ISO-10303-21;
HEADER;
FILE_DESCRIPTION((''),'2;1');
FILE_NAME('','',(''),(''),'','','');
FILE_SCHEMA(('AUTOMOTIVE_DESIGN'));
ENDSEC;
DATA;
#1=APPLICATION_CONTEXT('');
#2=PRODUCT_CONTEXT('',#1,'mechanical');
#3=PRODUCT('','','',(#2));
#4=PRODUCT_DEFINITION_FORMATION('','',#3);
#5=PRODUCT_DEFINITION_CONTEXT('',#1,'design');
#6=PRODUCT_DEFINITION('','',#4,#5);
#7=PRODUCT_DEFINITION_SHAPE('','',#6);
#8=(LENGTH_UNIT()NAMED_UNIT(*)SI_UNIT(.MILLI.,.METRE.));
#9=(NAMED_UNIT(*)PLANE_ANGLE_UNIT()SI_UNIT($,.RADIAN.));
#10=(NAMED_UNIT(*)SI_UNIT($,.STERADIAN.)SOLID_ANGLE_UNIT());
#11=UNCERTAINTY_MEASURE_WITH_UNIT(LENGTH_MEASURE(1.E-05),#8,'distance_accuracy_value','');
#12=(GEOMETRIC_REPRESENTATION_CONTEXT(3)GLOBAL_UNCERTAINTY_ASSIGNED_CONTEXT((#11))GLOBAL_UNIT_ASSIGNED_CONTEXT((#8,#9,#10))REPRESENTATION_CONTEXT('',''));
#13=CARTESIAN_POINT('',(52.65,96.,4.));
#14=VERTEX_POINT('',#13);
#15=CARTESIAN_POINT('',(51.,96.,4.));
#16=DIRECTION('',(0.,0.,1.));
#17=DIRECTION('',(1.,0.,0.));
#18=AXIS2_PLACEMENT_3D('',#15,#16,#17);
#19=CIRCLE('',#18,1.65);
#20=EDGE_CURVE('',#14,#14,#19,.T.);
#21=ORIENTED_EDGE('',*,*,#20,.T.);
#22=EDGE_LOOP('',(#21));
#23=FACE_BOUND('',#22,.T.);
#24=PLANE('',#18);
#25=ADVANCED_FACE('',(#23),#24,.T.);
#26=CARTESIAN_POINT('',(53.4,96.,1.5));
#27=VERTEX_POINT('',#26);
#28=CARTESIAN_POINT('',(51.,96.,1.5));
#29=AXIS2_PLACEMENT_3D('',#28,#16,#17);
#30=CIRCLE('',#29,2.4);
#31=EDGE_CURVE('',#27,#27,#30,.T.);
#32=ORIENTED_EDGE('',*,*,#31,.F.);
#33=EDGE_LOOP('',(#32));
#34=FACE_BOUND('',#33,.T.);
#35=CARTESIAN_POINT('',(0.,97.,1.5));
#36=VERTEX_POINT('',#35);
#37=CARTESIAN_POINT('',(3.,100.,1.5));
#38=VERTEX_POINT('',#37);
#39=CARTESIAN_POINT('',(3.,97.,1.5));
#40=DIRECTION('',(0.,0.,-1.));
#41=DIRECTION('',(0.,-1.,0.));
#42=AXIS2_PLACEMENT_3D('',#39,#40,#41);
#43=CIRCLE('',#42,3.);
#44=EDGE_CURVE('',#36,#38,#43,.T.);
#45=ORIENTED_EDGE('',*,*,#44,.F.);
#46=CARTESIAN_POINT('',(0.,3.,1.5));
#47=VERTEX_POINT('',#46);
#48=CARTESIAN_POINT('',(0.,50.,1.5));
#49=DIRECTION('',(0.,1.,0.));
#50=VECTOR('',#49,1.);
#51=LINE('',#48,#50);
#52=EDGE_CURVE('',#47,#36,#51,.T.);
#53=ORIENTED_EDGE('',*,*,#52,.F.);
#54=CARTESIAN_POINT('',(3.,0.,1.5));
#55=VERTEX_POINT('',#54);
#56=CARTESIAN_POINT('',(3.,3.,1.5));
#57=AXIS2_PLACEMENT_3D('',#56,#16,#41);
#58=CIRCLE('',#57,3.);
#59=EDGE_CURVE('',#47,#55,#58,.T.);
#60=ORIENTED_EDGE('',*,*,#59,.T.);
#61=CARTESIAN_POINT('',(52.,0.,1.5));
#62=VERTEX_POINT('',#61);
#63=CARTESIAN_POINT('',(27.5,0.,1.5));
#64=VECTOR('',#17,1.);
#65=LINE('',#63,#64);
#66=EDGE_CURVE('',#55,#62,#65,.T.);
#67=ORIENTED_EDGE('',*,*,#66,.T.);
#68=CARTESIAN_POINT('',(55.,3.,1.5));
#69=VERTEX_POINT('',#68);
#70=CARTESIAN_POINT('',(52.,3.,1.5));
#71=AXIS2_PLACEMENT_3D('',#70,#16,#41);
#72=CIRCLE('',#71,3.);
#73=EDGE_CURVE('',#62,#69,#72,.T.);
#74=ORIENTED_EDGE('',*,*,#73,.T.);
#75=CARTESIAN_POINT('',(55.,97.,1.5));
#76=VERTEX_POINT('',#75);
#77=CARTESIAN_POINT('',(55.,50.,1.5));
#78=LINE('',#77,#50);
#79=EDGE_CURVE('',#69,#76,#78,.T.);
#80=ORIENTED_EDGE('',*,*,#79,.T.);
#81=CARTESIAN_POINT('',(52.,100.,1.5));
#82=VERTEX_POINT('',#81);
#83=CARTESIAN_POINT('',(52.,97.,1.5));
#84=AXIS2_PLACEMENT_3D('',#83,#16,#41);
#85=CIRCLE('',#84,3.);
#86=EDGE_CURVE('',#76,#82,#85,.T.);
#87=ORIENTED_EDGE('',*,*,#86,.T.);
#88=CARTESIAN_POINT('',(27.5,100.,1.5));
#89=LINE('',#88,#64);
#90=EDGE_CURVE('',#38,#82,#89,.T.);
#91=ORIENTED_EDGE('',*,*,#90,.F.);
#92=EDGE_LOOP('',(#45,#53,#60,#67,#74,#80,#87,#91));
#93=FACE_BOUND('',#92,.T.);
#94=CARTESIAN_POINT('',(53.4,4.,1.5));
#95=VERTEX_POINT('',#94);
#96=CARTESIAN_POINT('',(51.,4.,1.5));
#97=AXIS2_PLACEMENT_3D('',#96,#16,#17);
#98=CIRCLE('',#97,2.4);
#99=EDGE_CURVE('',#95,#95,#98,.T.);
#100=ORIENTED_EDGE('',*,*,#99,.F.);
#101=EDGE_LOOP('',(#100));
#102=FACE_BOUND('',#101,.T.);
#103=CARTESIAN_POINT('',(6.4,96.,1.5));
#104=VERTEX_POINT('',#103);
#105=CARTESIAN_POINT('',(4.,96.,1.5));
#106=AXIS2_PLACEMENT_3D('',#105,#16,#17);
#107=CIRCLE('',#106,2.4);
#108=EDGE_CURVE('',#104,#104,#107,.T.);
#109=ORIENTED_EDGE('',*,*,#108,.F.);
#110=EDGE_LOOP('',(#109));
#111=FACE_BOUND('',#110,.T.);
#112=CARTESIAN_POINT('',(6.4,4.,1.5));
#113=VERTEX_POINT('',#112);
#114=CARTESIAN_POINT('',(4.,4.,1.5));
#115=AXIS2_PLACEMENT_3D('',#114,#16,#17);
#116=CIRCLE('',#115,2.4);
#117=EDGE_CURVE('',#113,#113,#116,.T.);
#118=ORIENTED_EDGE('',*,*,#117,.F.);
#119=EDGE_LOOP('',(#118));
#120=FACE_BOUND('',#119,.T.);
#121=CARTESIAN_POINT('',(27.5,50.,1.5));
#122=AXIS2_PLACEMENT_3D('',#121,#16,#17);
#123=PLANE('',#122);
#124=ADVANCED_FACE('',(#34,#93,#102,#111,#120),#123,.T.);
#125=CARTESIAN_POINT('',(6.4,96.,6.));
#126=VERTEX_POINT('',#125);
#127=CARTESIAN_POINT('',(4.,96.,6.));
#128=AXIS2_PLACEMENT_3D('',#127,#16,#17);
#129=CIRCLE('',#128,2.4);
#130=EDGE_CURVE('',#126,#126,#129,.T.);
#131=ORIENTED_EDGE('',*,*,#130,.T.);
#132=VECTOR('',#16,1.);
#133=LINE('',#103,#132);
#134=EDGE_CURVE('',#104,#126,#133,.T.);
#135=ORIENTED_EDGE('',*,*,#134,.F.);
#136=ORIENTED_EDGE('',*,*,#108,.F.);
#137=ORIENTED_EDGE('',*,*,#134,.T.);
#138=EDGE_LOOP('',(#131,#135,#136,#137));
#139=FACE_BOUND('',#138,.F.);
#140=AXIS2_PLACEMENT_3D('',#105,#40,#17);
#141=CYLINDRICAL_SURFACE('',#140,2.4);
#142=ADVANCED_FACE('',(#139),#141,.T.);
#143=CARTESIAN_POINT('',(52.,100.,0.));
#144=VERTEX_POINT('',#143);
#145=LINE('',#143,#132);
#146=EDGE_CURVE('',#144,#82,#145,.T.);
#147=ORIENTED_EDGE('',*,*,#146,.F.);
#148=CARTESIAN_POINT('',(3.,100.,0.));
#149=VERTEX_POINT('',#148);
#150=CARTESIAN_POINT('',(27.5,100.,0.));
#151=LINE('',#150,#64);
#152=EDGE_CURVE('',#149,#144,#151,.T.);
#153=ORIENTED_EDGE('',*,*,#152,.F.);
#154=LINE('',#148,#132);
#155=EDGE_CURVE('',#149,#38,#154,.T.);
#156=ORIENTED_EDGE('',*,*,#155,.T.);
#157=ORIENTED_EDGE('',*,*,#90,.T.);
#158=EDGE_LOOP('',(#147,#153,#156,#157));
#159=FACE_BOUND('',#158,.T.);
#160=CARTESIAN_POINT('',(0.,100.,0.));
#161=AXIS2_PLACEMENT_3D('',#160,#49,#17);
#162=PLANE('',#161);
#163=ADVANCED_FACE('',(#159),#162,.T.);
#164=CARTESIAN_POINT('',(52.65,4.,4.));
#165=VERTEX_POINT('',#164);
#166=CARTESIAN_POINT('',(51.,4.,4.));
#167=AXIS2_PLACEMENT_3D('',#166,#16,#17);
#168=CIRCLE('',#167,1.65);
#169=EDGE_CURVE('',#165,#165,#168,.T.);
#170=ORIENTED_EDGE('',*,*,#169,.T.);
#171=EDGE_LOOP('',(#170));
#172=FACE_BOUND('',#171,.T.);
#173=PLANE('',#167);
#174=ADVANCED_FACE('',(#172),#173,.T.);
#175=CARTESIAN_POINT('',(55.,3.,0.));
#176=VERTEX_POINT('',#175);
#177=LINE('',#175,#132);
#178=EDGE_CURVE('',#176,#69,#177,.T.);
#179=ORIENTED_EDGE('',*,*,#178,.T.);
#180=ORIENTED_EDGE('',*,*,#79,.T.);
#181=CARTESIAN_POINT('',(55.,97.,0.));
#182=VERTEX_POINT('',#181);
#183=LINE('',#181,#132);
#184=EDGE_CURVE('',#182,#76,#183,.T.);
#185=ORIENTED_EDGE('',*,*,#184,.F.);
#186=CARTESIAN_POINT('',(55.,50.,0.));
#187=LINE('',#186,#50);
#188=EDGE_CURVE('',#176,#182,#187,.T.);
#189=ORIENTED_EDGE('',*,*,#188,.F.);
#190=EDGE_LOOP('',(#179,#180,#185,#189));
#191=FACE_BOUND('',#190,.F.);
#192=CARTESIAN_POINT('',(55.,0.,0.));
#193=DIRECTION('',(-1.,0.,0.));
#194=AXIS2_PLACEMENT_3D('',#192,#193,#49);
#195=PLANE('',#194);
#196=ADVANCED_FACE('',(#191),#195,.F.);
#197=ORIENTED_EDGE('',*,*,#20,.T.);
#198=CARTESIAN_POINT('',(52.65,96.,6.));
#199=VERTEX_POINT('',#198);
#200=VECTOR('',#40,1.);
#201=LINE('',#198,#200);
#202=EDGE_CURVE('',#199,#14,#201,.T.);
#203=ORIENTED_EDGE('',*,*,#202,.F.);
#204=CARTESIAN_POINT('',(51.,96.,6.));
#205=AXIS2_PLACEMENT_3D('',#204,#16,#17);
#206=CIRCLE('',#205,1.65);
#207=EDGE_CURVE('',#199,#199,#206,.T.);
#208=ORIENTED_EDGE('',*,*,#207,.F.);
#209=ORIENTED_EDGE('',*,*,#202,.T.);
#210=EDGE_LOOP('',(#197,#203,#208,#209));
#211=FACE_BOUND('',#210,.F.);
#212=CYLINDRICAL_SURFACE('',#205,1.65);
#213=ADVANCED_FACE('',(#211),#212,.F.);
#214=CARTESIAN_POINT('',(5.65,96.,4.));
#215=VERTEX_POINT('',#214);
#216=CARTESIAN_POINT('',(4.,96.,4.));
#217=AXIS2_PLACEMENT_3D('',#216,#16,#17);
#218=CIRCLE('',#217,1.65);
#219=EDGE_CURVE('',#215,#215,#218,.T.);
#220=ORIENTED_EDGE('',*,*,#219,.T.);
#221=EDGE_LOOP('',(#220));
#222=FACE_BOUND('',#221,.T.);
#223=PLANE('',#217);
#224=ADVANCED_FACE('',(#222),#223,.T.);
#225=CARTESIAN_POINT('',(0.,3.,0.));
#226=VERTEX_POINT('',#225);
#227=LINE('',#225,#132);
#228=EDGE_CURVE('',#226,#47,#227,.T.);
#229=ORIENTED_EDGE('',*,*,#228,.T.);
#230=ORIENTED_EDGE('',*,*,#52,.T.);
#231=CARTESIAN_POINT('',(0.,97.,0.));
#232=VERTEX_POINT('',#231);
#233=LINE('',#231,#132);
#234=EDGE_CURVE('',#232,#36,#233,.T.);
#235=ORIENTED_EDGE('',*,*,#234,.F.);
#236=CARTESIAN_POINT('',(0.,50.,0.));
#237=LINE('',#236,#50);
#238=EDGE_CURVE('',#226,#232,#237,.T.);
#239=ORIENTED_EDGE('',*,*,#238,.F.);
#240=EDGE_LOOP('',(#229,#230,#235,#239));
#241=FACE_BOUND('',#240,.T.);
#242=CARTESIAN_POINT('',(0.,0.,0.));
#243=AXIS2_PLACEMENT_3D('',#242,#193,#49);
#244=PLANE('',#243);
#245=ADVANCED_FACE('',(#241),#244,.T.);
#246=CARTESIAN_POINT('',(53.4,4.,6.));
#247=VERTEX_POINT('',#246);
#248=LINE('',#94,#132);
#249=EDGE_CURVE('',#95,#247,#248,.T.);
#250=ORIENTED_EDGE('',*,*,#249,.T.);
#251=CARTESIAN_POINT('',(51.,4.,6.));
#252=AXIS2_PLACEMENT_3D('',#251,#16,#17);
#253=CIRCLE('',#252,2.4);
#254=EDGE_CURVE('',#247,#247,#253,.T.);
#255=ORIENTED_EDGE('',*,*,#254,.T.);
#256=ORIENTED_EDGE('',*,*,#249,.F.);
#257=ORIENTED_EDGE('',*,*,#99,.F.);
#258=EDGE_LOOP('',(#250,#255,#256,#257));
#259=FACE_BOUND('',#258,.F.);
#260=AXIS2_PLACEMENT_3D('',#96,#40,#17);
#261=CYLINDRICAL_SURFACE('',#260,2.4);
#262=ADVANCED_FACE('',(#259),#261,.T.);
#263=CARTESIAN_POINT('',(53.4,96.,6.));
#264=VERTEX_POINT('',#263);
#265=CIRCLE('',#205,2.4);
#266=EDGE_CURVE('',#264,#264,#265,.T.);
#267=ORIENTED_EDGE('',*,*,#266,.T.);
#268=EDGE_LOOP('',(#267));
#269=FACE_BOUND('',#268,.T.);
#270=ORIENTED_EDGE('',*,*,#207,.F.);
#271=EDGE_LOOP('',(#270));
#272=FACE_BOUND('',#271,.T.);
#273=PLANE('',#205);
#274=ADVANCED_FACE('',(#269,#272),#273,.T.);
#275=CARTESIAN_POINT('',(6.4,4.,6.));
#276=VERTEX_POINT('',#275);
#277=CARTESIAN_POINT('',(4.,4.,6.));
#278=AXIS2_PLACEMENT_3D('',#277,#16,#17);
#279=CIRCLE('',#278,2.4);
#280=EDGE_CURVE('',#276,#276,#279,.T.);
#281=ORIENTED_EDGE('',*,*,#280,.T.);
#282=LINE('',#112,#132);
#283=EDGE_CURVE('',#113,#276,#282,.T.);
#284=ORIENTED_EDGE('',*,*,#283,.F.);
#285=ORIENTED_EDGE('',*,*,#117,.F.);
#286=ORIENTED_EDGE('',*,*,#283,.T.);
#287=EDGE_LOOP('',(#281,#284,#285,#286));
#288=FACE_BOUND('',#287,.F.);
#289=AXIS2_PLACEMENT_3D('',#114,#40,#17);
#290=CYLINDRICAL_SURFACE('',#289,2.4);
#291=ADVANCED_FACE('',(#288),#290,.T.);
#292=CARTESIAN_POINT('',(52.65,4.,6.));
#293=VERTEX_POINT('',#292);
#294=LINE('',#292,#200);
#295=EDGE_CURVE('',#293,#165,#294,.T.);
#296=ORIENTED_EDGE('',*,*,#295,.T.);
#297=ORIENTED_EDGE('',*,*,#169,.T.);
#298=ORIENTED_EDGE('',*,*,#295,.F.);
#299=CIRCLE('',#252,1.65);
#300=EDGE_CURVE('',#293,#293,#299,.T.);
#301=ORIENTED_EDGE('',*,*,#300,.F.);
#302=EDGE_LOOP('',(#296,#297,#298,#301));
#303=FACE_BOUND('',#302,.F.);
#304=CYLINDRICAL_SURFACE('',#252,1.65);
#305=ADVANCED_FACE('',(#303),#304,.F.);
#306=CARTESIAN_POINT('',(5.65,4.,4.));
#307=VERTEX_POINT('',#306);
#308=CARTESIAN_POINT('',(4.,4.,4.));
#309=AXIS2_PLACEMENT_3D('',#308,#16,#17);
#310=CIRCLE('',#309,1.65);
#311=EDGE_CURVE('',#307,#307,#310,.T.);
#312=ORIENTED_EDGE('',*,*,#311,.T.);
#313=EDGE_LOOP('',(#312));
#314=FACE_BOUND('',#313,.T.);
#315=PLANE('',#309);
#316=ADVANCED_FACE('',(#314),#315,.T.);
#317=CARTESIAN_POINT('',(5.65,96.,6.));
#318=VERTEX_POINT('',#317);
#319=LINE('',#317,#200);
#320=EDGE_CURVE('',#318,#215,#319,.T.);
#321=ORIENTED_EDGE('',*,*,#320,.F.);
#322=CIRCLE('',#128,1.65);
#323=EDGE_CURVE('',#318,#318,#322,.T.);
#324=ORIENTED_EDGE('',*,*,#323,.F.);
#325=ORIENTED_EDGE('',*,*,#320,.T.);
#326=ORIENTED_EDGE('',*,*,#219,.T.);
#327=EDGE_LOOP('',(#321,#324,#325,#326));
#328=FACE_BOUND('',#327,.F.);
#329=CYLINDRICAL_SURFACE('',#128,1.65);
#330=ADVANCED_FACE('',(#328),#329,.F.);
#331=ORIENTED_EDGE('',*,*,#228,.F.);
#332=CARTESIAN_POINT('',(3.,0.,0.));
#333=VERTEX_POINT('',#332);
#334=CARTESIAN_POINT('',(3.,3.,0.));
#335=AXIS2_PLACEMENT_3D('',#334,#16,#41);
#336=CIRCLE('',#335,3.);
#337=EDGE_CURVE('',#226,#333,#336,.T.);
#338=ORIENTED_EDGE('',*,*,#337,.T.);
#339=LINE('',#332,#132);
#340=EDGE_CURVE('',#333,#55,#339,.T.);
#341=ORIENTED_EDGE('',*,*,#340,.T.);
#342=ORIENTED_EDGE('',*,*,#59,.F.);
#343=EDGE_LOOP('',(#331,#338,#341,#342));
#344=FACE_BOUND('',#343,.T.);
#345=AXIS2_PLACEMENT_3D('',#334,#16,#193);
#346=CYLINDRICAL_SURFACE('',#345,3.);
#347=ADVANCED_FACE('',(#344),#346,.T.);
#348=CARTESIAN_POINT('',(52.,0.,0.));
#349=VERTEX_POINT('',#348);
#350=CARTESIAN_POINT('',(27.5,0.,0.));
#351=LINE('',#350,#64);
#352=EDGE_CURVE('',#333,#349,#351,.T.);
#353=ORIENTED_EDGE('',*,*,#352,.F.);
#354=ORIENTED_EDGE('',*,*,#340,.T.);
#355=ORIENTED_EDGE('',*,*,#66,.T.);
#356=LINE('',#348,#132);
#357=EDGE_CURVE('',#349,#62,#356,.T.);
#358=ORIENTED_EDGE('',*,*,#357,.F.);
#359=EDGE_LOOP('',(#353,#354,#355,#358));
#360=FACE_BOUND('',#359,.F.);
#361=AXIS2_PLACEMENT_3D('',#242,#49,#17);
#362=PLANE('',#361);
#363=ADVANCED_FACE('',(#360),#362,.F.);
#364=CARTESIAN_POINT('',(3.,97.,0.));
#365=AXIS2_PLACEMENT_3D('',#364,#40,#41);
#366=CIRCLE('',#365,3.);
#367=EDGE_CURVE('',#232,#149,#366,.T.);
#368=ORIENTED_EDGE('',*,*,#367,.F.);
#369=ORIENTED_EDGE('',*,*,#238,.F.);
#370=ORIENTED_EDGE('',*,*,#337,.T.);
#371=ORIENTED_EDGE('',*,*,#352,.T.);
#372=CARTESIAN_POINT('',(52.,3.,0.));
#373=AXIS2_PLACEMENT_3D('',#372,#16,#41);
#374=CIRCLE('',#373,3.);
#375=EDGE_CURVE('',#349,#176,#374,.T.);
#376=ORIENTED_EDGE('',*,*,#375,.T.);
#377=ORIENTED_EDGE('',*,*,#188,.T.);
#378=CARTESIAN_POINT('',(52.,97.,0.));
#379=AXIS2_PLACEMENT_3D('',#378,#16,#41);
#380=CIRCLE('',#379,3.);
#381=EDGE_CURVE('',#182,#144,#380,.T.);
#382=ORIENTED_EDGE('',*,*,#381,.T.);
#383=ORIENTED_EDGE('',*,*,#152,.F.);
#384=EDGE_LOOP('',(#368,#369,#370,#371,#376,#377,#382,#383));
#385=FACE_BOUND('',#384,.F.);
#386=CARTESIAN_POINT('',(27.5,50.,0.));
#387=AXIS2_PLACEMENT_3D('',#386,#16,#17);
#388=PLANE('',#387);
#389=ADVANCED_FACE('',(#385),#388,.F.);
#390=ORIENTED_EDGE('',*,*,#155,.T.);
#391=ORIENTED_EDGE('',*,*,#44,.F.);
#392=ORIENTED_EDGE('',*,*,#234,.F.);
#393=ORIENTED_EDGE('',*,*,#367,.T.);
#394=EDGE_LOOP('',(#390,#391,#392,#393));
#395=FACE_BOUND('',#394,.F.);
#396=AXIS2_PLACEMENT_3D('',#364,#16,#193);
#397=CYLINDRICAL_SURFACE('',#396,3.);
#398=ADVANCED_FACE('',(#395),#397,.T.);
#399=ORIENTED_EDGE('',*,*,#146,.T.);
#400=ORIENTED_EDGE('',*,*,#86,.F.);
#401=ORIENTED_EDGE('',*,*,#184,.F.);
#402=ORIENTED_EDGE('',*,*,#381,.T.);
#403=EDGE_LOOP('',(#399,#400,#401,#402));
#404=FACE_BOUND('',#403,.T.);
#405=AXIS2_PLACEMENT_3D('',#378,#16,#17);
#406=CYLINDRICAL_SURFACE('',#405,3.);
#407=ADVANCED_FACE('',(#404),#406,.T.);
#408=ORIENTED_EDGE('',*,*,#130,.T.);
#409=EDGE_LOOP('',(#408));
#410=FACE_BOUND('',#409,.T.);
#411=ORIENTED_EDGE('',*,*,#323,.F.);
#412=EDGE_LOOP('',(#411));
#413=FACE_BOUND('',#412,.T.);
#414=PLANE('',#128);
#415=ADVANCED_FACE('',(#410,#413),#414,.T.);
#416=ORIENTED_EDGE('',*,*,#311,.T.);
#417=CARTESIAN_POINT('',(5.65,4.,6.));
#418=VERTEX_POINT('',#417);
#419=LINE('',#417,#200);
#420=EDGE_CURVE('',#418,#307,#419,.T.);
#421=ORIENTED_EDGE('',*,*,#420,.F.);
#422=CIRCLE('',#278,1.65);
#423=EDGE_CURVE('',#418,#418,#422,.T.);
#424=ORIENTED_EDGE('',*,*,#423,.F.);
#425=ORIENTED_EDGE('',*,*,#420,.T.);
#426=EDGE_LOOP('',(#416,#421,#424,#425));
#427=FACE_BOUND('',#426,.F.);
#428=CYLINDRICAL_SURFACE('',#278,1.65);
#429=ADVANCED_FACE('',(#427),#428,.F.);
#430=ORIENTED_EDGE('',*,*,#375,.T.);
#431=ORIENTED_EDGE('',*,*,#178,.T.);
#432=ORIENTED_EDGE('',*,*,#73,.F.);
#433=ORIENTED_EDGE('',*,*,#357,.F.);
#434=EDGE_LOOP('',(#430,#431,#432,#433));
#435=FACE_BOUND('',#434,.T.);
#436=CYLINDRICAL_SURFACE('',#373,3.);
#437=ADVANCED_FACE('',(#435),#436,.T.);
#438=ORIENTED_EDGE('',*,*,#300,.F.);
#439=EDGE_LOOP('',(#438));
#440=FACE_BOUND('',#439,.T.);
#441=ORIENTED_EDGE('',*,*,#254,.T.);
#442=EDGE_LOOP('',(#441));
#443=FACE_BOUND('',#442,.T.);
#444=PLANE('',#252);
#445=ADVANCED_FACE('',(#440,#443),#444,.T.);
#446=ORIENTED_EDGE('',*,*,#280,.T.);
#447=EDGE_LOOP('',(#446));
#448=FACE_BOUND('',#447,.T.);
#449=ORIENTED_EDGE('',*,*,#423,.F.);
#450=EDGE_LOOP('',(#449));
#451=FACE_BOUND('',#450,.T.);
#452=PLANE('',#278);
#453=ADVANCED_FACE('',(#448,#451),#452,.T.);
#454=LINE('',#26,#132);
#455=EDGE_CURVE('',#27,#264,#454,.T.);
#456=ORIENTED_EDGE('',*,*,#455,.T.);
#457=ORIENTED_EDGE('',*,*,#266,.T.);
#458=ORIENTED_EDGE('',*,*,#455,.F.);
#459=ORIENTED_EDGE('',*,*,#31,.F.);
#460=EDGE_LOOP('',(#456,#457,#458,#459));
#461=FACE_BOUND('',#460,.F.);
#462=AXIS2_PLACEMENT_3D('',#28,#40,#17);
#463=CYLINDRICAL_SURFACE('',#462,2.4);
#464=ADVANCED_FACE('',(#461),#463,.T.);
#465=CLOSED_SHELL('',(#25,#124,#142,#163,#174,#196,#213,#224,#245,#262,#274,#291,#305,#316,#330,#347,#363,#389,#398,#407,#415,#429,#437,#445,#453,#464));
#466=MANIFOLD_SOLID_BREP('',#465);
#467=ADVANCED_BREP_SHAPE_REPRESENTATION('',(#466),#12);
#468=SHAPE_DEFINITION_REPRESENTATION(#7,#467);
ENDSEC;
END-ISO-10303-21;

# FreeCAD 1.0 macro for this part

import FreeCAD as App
import Part
import Sketcher


def edges_at(feature, points):
    """Names of the edges that pass closest to the given points."""
    edges = feature.Shape.Edges
    near = lambda p: min(range(len(edges)), key=lambda i: edges[i].distToShape(Part.Vertex(*p))[0])
    return sorted({f"Edge{near(p) + 1}" for p in points})

doc = App.newDocument("Part")
body = doc.addObject("PartDesign::Body", "Body")

sketch1 = body.newObject("Sketcher::SketchObject", "Sketch")
sketch1.AttachmentSupport = (doc.getObject("XY_Plane"), [""])
sketch1.MapMode = "FlatFace"
sketch1.addGeometry([
    Part.LineSegment(App.Vector(0, 100, 0), App.Vector(0, 0, 0)),
    Part.LineSegment(App.Vector(0, 0, 0), App.Vector(55, 0, 0)),
    Part.LineSegment(App.Vector(55, 0, 0), App.Vector(55, 100, 0)),
    Part.LineSegment(App.Vector(55, 100, 0), App.Vector(0, 100, 0)),
], False)
sketch1.addConstraint([
    Sketcher.Constraint("Coincident", 0, 2, 1, 1),
    Sketcher.Constraint("Coincident", 1, 2, 2, 1),
    Sketcher.Constraint("Coincident", 2, 2, 3, 1),
    Sketcher.Constraint("Coincident", 3, 2, 0, 1),
    Sketcher.Constraint("Vertical", 0),
    Sketcher.Constraint("Horizontal", 1),
    Sketcher.Constraint("Vertical", 2),
    Sketcher.Constraint("Horizontal", 3),
    Sketcher.Constraint("Coincident", 0, 2, -1, 1),
    Sketcher.Constraint("DistanceX", 1, 1, 1, 2, 55.0),
    Sketcher.Constraint("DistanceY", 0, 2, 0, 1, 100.0),
])
pad1 = body.newObject("PartDesign::Pad", "Pad")
pad1.Profile = sketch1
pad1.Length = 1.5
doc.recompute()

fillet = body.newObject("PartDesign::Fillet", "Fillet")
fillet.Base = (pad1, edges_at(pad1, [
    (0, 100, 0.75),
    (55, 100, 0.75),
    (0, 0, 0.75),
    (55, 0, 0.75),
]))
fillet.Radius = 3

sketch2 = body.newObject("Sketcher::SketchObject", "Sketch001")
sketch2.AttachmentSupport = (doc.getObject("XY_Plane"), [""])
sketch2.MapMode = "FlatFace"
sketch2.AttachmentOffset = App.Placement(App.Vector(0, 0, 1.5), App.Rotation())
sketch2.addGeometry([
    Part.Circle(App.Vector(4, 96, 0), App.Vector(0, 0, 1), 2.4),
    Part.Circle(App.Vector(4, 4, 0), App.Vector(0, 0, 1), 2.4),
    Part.Circle(App.Vector(51, 96, 0), App.Vector(0, 0, 1), 2.4),
    Part.Circle(App.Vector(51, 4, 0), App.Vector(0, 0, 1), 2.4),
], False)
sketch2.addConstraint([
    Sketcher.Constraint("Equal", 0, 1),
    Sketcher.Constraint("Equal", 1, 2),
    Sketcher.Constraint("Equal", 2, 3),
    Sketcher.Constraint("Horizontal", 0, 3, 2, 3),
    Sketcher.Constraint("Horizontal", 1, 3, 3, 3),
    Sketcher.Constraint("Vertical", 0, 3, 1, 3),
    Sketcher.Constraint("Vertical", 2, 3, 3, 3),
    Sketcher.Constraint("Diameter", 0, 4.8),
    Sketcher.Constraint("DistanceX", -1, 1, 0, 3, 4.0),
    Sketcher.Constraint("DistanceY", -1, 1, 0, 3, 96.0),
    Sketcher.Constraint("DistanceY", -1, 1, 1, 3, 4.0),
    Sketcher.Constraint("DistanceX", -1, 1, 2, 3, 51.0),
])
pad2 = body.newObject("PartDesign::Pad", "Pad001")
pad2.Profile = sketch2
pad2.Length = 4.5

sketch3 = body.newObject("Sketcher::SketchObject", "Sketch002")
sketch3.AttachmentSupport = (doc.getObject("XY_Plane"), [""])
sketch3.MapMode = "FlatFace"
sketch3.AttachmentOffset = App.Placement(App.Vector(0, 0, 6), App.Rotation())
sketch3.addGeometry([
    Part.Circle(App.Vector(4, 96, 0), App.Vector(0, 0, 1), 1.6),
    Part.Circle(App.Vector(4, 4, 0), App.Vector(0, 0, 1), 1.6),
    Part.Circle(App.Vector(51, 96, 0), App.Vector(0, 0, 1), 1.6),
    Part.Circle(App.Vector(51, 4, 0), App.Vector(0, 0, 1), 1.6),
], False)
sketch3.addConstraint([
    Sketcher.Constraint("Equal", 0, 1),
    Sketcher.Constraint("Equal", 1, 2),
    Sketcher.Constraint("Equal", 2, 3),
    Sketcher.Constraint("Horizontal", 0, 3, 2, 3),
    Sketcher.Constraint("Horizontal", 1, 3, 3, 3),
    Sketcher.Constraint("Vertical", 0, 3, 1, 3),
    Sketcher.Constraint("Vertical", 2, 3, 3, 3),
    Sketcher.Constraint("Diameter", 0, 3.3),
    Sketcher.Constraint("DistanceX", -1, 1, 0, 3, 4.0),
    Sketcher.Constraint("DistanceY", -1, 1, 0, 3, 96.0),
    Sketcher.Constraint("DistanceY", -1, 1, 1, 3, 4.0),
    Sketcher.Constraint("DistanceX", -1, 1, 2, 3, 51.0),
])
pocket1 = body.newObject("PartDesign::Pocket", "Pocket")
pocket1.Profile = sketch3
pocket1.Length = 2

doc.recompute()
